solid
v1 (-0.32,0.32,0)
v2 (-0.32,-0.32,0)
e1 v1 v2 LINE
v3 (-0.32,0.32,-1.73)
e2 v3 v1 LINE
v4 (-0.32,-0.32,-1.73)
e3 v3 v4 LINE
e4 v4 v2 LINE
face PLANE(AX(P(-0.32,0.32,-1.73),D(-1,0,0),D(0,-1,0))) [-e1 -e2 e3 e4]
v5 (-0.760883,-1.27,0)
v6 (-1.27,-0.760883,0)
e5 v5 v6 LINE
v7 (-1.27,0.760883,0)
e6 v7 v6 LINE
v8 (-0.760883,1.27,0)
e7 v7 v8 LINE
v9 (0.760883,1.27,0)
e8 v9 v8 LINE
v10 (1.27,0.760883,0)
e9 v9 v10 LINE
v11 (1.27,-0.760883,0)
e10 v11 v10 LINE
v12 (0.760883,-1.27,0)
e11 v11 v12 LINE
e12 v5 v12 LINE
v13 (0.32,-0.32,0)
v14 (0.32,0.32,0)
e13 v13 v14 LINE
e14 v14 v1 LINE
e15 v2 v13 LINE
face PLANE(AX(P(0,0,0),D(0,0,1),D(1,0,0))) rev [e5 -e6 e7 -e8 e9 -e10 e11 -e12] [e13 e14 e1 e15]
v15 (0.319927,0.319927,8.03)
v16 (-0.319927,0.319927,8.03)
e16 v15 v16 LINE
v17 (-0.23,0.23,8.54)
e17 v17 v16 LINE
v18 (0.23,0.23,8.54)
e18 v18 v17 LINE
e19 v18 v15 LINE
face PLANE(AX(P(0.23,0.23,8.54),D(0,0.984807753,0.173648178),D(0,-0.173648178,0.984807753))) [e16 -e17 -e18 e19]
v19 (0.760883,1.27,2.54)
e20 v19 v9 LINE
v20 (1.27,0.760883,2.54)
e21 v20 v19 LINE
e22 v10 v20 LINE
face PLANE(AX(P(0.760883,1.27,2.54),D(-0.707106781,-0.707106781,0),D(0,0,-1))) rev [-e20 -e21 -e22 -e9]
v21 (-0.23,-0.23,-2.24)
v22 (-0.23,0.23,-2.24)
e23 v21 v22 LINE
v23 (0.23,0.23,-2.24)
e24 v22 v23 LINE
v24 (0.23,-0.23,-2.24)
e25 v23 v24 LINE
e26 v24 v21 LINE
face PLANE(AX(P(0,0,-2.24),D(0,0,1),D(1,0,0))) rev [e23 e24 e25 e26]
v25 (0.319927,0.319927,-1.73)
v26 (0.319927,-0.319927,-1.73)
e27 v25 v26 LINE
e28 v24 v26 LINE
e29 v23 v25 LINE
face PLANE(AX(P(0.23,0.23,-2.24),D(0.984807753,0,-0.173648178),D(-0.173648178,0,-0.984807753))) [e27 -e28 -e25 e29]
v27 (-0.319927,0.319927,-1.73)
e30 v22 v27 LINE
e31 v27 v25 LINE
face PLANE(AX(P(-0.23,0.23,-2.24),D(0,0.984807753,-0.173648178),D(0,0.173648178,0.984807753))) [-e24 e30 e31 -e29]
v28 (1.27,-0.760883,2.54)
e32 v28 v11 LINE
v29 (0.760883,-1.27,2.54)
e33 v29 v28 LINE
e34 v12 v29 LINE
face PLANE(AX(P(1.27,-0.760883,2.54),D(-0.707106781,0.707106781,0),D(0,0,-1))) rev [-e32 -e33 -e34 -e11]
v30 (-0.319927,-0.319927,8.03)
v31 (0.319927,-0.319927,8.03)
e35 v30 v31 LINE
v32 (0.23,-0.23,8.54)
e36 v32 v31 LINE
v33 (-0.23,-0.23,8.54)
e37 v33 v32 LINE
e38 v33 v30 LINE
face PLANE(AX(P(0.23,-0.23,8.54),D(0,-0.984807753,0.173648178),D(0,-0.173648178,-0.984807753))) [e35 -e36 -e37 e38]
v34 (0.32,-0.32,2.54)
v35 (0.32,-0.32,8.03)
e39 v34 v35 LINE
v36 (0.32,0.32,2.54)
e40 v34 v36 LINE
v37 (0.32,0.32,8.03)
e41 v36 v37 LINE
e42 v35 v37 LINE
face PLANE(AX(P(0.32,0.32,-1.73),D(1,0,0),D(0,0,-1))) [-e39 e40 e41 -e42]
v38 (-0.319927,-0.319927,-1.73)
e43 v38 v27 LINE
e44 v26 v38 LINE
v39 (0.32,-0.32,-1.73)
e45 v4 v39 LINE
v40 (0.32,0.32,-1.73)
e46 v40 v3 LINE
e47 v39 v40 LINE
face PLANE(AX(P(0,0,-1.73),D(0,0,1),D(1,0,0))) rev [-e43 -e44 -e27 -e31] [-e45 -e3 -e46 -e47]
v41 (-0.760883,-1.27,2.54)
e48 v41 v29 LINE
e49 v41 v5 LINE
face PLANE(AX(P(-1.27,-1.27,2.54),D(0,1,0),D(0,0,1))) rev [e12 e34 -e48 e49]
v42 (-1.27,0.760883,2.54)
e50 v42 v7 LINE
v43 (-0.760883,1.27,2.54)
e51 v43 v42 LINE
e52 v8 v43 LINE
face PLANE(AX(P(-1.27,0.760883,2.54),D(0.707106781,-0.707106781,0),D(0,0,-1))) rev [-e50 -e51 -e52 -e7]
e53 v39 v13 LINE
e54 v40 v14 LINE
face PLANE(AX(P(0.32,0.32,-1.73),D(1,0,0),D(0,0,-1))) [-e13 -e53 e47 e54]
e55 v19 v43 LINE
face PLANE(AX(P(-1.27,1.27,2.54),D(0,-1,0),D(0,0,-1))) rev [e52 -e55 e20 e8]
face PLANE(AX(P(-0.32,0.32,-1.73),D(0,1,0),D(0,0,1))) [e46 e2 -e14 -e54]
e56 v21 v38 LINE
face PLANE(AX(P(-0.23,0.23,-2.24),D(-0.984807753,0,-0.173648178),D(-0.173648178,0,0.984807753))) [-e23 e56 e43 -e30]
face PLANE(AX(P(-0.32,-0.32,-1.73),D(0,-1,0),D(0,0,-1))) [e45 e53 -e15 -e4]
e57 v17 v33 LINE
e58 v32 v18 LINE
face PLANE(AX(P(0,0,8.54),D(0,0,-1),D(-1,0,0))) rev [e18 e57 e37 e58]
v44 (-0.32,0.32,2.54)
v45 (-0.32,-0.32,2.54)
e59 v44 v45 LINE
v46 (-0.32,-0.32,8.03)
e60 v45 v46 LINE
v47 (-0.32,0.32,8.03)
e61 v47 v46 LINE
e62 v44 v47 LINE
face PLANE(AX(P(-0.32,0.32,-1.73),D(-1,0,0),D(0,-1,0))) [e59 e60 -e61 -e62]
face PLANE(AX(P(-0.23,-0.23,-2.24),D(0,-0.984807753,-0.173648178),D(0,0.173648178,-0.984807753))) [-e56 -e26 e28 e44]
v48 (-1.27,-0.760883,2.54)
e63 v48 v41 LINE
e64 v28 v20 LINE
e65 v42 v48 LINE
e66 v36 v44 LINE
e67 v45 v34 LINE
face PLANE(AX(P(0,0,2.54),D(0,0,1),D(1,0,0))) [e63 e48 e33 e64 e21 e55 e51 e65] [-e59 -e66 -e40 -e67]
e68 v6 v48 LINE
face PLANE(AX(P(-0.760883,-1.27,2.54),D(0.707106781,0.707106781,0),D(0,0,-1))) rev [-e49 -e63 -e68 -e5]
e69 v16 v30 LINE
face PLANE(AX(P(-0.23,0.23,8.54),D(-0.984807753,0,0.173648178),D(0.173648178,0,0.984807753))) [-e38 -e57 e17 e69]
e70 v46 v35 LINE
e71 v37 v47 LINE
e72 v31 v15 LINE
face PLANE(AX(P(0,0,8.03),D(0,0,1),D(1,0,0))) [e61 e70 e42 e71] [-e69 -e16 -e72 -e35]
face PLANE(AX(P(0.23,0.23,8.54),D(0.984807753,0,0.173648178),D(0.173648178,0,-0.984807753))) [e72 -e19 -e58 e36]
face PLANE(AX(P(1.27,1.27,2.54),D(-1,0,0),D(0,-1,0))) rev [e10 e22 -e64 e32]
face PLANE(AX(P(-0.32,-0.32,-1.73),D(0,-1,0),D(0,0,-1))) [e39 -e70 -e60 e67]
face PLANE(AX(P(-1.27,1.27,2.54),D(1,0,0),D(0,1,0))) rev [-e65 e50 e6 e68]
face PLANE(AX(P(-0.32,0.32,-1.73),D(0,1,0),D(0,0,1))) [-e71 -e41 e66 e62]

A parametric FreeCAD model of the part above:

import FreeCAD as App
import Part
import Sketcher

V = App.Vector
Q = App.Units.Quantity


def edges_at(feature, points):
    """Names of the edges that pass closest to the given points."""
    edges = feature.Shape.Edges
    near = lambda p: min(range(len(edges)), key=lambda i: edges[i].distToShape(Part.Vertex(*p))[0])
    return sorted({f"Edge{near(p) + 1}" for p in points})


def faces_at(feature, points):
    """Names of the faces that lie closest to the given points."""
    faces = feature.Shape.Faces
    near = lambda p: min(range(len(faces)), key=lambda i: faces[i].distToShape(Part.Vertex(*p))[0])
    return sorted({f"Face{near(p) + 1}" for p in points})


def add_polygon(sketch, points):
    """Adds a closed chain of lines whose ends are joined by coincident constraints."""
    first, n = sketch.GeometryCount, len(points)
    for a, b in zip(points, points[1:] + points[:1]):
        sketch.addGeometry(Part.LineSegment(App.Vector(*a, 0), App.Vector(*b, 0)), False)
    for i in range(n):
        sketch.addConstraint(Sketcher.Constraint("Coincident", first + i, 2, first + (i + 1) % n, 1))

doc = App.newDocument("Part")
params = doc.addObject("Spreadsheet::Sheet", "Params")
for row, (alias, value) in enumerate([
    ("sketch1_width", "0.1 in"),
    ("pad1_length", "0.1 in"),
    ("pad2_length", "8.03 mm"),
    ("pad2_length2", "1.73 mm"),
    ("pad3_length", "0.51 mm"),
    ("pad4_length", "0.51 mm"),
    ("draft_angle", "10 deg"),
    ("draft2_angle", "10 deg"),
    ("chamfer_size", "0.509117 mm"),
], start=1):
    params.set(f"A{row}", alias)
    params.set(f"B{row}", "=" + value)
    params.setAlias(f"B{row}", alias)

body = doc.addObject("PartDesign::Body", "Body")

sketch1 = body.newObject("Sketcher::SketchObject", "Sketch")
sketch1.AttachmentSupport = (doc.getObject("XY_Plane"), [""])
sketch1.MapMode = "FlatFace"
add_polygon(sketch1, [(-1.3, 1.3), (-1.3, -1.3), (1.3, -1.3), (1.3, 1.3)])
sketch1.addConstraint(Sketcher.Constraint("Vertical", 0))
sketch1.addConstraint(Sketcher.Constraint("Horizontal", 1))
sketch1.addConstraint(Sketcher.Constraint("Vertical", 2))
sketch1.addConstraint(Sketcher.Constraint("Horizontal", 3))
sketch1.addConstraint(Sketcher.Constraint("Symmetric", 0, 2, 2, 2, -1, 1))
sketch1.addConstraint(Sketcher.Constraint("Equal", 3, 0))
sketch1.addConstraint(Sketcher.Constraint("DistanceX", 1, 1, 1, 2, Q("0.1 in")))
sketch1.setExpression("Constraints[10]", "Params.sketch1_width")
pad1 = body.newObject("PartDesign::Pad", "Pad")
pad1.Profile = sketch1
pad1.setExpression("Length", "Params.pad1_length")

sketch2 = body.newObject("Sketcher::SketchObject", "Sketch001")
sketch2.AttachmentSupport = (doc.getObject("XY_Plane"), [""])
sketch2.MapMode = "FlatFace"
add_polygon(sketch2, [(-0.3, 0.3), (-0.3, -0.3), (0.3, -0.3), (0.3, 0.3)])
sketch2.addConstraint(Sketcher.Constraint("Vertical", 0))
sketch2.addConstraint(Sketcher.Constraint("Horizontal", 1))
sketch2.addConstraint(Sketcher.Constraint("Vertical", 2))
sketch2.addConstraint(Sketcher.Constraint("Horizontal", 3))
sketch2.addConstraint(Sketcher.Constraint("Symmetric", 0, 2, 2, 2, -1, 1))
sketch2.addConstraint(Sketcher.Constraint("Equal", 3, 0))
sketch2.addConstraint(Sketcher.Constraint("DistanceX", 1, 1, 1, 2, Q("0.64 mm")))
pad2 = body.newObject("PartDesign::Pad", "Pad001")
pad2.Profile = sketch2
pad2.Type = "TwoLengths"
pad2.setExpression("Length", "Params.pad2_length")
pad2.setExpression("Length2", "Params.pad2_length2")

sketch3 = body.newObject("Sketcher::SketchObject", "Sketch002")
sketch3.AttachmentSupport = (doc.getObject("XY_Plane"), [""])
sketch3.MapMode = "FlatFace"
sketch3.AttachmentOffset = App.Placement(V(0, 0, -1.73), App.Rotation())
add_polygon(sketch3, [(0.23, 0.23), (0.23, -0.23), (-0.23, -0.23), (-0.23, 0.23)])
sketch3.addConstraint(Sketcher.Constraint("Vertical", 0))
sketch3.addConstraint(Sketcher.Constraint("Horizontal", 1))
sketch3.addConstraint(Sketcher.Constraint("Vertical", 2))
sketch3.addConstraint(Sketcher.Constraint("Horizontal", 3))
sketch3.addConstraint(Sketcher.Constraint("Symmetric", 0, 2, 2, 2, -1, 1))
sketch3.addConstraint(Sketcher.Constraint("Equal", 3, 0))
sketch3.addConstraint(Sketcher.Constraint("DistanceX", 1, 2, 1, 1, Q("0.46 mm")))
pad3 = body.newObject("PartDesign::Pad", "Pad002")
pad3.Profile = sketch3
pad3.setExpression("Length", "Params.pad3_length")
pad3.Reversed = True

sketch4 = body.newObject("Sketcher::SketchObject", "Sketch003")
sketch4.AttachmentSupport = (doc.getObject("XY_Plane"), [""])
sketch4.MapMode = "FlatFace"
sketch4.AttachmentOffset = App.Placement(V(0, 0, 8.03), App.Rotation())
add_polygon(sketch4, [(-0.23, 0.23), (-0.23, -0.23), (0.23, -0.23), (0.23, 0.23)])
sketch4.addConstraint(Sketcher.Constraint("Vertical", 0))
sketch4.addConstraint(Sketcher.Constraint("Horizontal", 1))
sketch4.addConstraint(Sketcher.Constraint("Vertical", 2))
sketch4.addConstraint(Sketcher.Constraint("Horizontal", 3))
sketch4.addConstraint(Sketcher.Constraint("Symmetric", 0, 2, 2, 2, -1, 1))
sketch4.addConstraint(Sketcher.Constraint("Equal", 3, 0))
sketch4.addConstraint(Sketcher.Constraint("DistanceX", 1, 1, 1, 2, Q("0.46 mm")))
pad4 = body.newObject("PartDesign::Pad", "Pad003")
pad4.Profile = sketch4
pad4.setExpression("Length", "Params.pad4_length")
doc.recompute()

datumplane = body.newObject("PartDesign::Plane", "DatumPlane")
datumplane.AttachmentSupport = (doc.getObject("XY_Plane"), [""])
datumplane.MapMode = "FlatFace"
datumplane.AttachmentOffset = App.Placement(V(0, 0, 8.54), App.Rotation())
draft = body.newObject("PartDesign::Draft", "Draft")
draft.Base = (pad4, faces_at(pad4, [
    (0, -0.23, 8.285),
    (-0.23, 0, 8.285),
    (0, 0.23, 8.285),
    (0.23, 0, 8.285),
]))
draft.NeutralPlane = (datumplane, [""])
draft.setExpression("Angle", "Params.draft_angle")
draft.Reversed = False
doc.recompute()

datumplane2 = body.newObject("PartDesign::Plane", "DatumPlane001")
datumplane2.AttachmentSupport = (doc.getObject("XY_Plane"), [""])
datumplane2.MapMode = "FlatFace"
datumplane2.AttachmentOffset = App.Placement(V(0, 0, -2.24), App.Rotation())
draft2 = body.newObject("PartDesign::Draft", "Draft001")
draft2.Base = (draft, faces_at(draft, [
    (-0.23, 0, -1.985),
    (0, -0.23, -1.985),
    (0.23, 0, -1.985),
    (0, 0.23, -1.985),
]))
draft2.NeutralPlane = (datumplane2, [""])
draft2.setExpression("Angle", "Params.draft2_angle")
draft2.Reversed = True
doc.recompute()

chamfer = body.newObject("PartDesign::Chamfer", "Chamfer")
chamfer.Base = (draft2, edges_at(draft2, [
    (1.27, -1.27, 1.27),
    (-1.27, -1.27, 1.27),
    (-1.27, 1.27, 1.27),
    (1.27, 1.27, 1.27),
]))
chamfer.setExpression("Size", "Params.chamfer_size")

doc.recompute()
